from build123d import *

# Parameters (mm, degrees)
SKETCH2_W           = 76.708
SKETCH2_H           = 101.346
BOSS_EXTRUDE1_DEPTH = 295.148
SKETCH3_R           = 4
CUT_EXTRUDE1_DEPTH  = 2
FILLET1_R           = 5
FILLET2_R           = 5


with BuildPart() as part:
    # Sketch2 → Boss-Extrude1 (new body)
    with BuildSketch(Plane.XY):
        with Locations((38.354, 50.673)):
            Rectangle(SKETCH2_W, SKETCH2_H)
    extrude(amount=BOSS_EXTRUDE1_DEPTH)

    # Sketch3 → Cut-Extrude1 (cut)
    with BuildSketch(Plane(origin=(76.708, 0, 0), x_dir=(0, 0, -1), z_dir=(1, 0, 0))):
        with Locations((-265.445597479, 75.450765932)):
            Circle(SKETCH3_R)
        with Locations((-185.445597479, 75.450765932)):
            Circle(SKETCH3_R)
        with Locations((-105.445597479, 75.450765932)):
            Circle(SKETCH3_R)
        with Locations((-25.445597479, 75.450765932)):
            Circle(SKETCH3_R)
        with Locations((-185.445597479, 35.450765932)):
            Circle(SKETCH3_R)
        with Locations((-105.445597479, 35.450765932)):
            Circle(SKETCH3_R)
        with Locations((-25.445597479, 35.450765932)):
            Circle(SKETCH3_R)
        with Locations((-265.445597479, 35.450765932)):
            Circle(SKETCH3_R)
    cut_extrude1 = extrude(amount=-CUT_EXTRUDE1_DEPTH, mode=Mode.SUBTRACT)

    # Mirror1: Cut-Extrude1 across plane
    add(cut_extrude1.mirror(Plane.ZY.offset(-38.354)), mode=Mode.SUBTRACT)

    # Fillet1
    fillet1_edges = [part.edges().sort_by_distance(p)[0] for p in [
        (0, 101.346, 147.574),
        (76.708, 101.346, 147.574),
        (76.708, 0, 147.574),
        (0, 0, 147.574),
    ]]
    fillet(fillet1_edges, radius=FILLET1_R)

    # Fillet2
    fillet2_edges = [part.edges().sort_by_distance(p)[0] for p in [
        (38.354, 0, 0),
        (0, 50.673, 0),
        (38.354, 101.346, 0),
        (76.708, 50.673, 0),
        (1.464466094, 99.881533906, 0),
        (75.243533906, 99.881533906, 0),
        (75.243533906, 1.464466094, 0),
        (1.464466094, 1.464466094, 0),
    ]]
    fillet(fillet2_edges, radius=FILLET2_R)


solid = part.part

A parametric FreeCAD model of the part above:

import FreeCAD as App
import Part
import Sketcher
from FreeCAD import Vector
Q = App.Units.Quantity


def edges_at(feature, points):
    """Names of the edges that pass closest to the given points."""
    edges = feature.Shape.Edges
    near = lambda p: min(range(len(edges)), key=lambda i: edges[i].distToShape(Part.Vertex(*p))[0])
    return sorted({f"Edge{near(p) + 1}" for p in points})

doc = App.newDocument("Part")
params = doc.addObject("Spreadsheet::Sheet", "Params")
for row, (alias, value) in enumerate([
    ("pad1_length", "295.148 mm"),
    ("sketch2_diameter", "8 mm"),
    ("pocket1_length", "2 mm"),
    ("fillet_radius", "5 mm"),
    ("fillet2_radius", "5 mm"),
], start=1):
    params.set(f"A{row}", alias)
    params.set(f"B{row}", "=" + value)
    params.setAlias(f"B{row}", alias)

body = doc.addObject("PartDesign::Body", "Body")

sketch1 = body.newObject("Sketcher::SketchObject", "Sketch")
sketch1.AttachmentSupport = (doc.getObject("XY_Plane"), [""])
sketch1.MapMode = "FlatFace"
sketch1.addGeometry(Part.LineSegment(Vector(0, 101, 0), Vector(0, 0, 0)), False)
sketch1.addGeometry(Part.LineSegment(Vector(0, 0, 0), Vector(77, 0, 0)), False)
sketch1.addGeometry(Part.LineSegment(Vector(77, 0, 0), Vector(77, 101, 0)), False)
sketch1.addGeometry(Part.LineSegment(Vector(77, 101, 0), Vector(0, 101, 0)), False)
sketch1.addConstraint(Sketcher.Constraint("Coincident", 0, 2, 1, 1))
sketch1.addConstraint(Sketcher.Constraint("Coincident", 1, 2, 2, 1))
sketch1.addConstraint(Sketcher.Constraint("Coincident", 2, 2, 3, 1))
sketch1.addConstraint(Sketcher.Constraint("Coincident", 3, 2, 0, 1))
sketch1.addConstraint(Sketcher.Constraint("Vertical", 0))
sketch1.addConstraint(Sketcher.Constraint("Horizontal", 1))
sketch1.addConstraint(Sketcher.Constraint("Vertical", 2))
sketch1.addConstraint(Sketcher.Constraint("Horizontal", 3))
sketch1.addConstraint(Sketcher.Constraint("Coincident", 0, 2, -1, 1))
sketch1.addConstraint(Sketcher.Constraint("DistanceX", 1, 1, 1, 2, Q("76.708 mm")))
sketch1.addConstraint(Sketcher.Constraint("DistanceY", 0, 2, 0, 1, Q("101.346 mm")))
pad1 = body.newObject("PartDesign::Pad", "Pad")
pad1.Profile = sketch1
pad1.setExpression("Length", "Params.pad1_length")

sketch2 = body.newObject("Sketcher::SketchObject", "Sketch001")
sketch2.AttachmentSupport = (doc.getObject("YZ_Plane"), [""])
sketch2.MapMode = "FlatFace"
sketch2.AttachmentOffset = App.Placement(Vector(0, 0, 76.708), App.Rotation())
sketch2.addGeometry(Part.Circle(Vector(75.5, 265.4, 0), Vector(0, 0, 1), 4), False)
sketch2.addGeometry(Part.Circle(Vector(75.5, 185.4, 0), Vector(0, 0, 1), 4), False)
sketch2.addGeometry(Part.Circle(Vector(75.5, 105.4, 0), Vector(0, 0, 1), 4), False)
sketch2.addGeometry(Part.Circle(Vector(75.5, 25.4, 0), Vector(0, 0, 1), 4), False)
sketch2.addGeometry(Part.Circle(Vector(35.5, 185.4, 0), Vector(0, 0, 1), 4), False)
sketch2.addGeometry(Part.Circle(Vector(35.5, 105.4, 0), Vector(0, 0, 1), 4), False)
sketch2.addGeometry(Part.Circle(Vector(35.5, 25.4, 0), Vector(0, 0, 1), 4), False)
sketch2.addGeometry(Part.Circle(Vector(35.5, 265.4, 0), Vector(0, 0, 1), 4), False)
sketch2.addConstraint(Sketcher.Constraint("Equal", 0, 1))
sketch2.addConstraint(Sketcher.Constraint("Equal", 1, 2))
sketch2.addConstraint(Sketcher.Constraint("Equal", 2, 3))
sketch2.addConstraint(Sketcher.Constraint("Equal", 3, 4))
sketch2.addConstraint(Sketcher.Constraint("Equal", 4, 5))
sketch2.addConstraint(Sketcher.Constraint("Equal", 5, 6))
sketch2.addConstraint(Sketcher.Constraint("Equal", 6, 7))
sketch2.addConstraint(Sketcher.Constraint("Horizontal", 1, 3, 4, 3))
sketch2.addConstraint(Sketcher.Constraint("Horizontal", 2, 3, 5, 3))
sketch2.addConstraint(Sketcher.Constraint("Horizontal", 3, 3, 6, 3))
sketch2.addConstraint(Sketcher.Constraint("Horizontal", 0, 3, 7, 3))
sketch2.addConstraint(Sketcher.Constraint("Vertical", 0, 3, 1, 3))
sketch2.addConstraint(Sketcher.Constraint("Vertical", 1, 3, 2, 3))
sketch2.addConstraint(Sketcher.Constraint("Vertical", 2, 3, 3, 3))
sketch2.addConstraint(Sketcher.Constraint("Vertical", 4, 3, 5, 3))
sketch2.addConstraint(Sketcher.Constraint("Vertical", 5, 3, 6, 3))
sketch2.addConstraint(Sketcher.Constraint("Vertical", 6, 3, 7, 3))
sketch2.addConstraint(Sketcher.Constraint("Diameter", 0, Q("8 mm")))
sketch2.addConstraint(Sketcher.Constraint("DistanceY", 1, 3, 0, 3, Q("80 mm")))
sketch2.addConstraint(Sketcher.Constraint("DistanceY", 2, 3, 1, 3, Q("80 mm")))
sketch2.addConstraint(Sketcher.Constraint("DistanceY", 3, 3, 2, 3, Q("80 mm")))
sketch2.addConstraint(Sketcher.Constraint("DistanceX", 4, 3, 1, 3, Q("40 mm")))
sketch2.addConstraint(Sketcher.Constraint("DistanceX", -1, 1, 0, 3, Q("75.450766 mm")))
sketch2.addConstraint(Sketcher.Constraint("DistanceY", -1, 1, 0, 3, Q("265.445597 mm")))
sketch2.setExpression("Constraints[17]", "Params.sketch2_diameter")
pocket1 = body.newObject("PartDesign::Pocket", "Pocket")
pocket1.Profile = sketch2
pocket1.setExpression("Length", "Params.pocket1_length")
doc.recompute()

datumplane = body.newObject("PartDesign::Plane", "DatumPlane")
datumplane.AttachmentSupport = (doc.getObject("YZ_Plane"), [""])
datumplane.MapMode = "FlatFace"
datumplane.AttachmentOffset = App.Placement(Vector(0, 0, 38.354), App.Rotation())
mirrored = body.newObject("PartDesign::Mirrored", "Mirrored")
mirrored.Originals = [pocket1]
mirrored.MirrorPlane = (datumplane, [""])
body.Tip = mirrored
doc.recompute()

fillet = body.newObject("PartDesign::Fillet", "Fillet")
fillet.Base = (mirrored, edges_at(mirrored, [
    (0, 101.346, 147.574),
    (76.708, 101.346, 147.574),
    (76.708, 0, 147.574),
    (0, 0, 147.574),
]))
fillet.setExpression("Radius", "Params.fillet_radius")
doc.recompute()

fillet2 = body.newObject("PartDesign::Fillet", "Fillet001")
fillet2.Base = (fillet, edges_at(fillet, [
    (38.354, 0, 0),
    (0, 50.673, 0),
    (38.354, 101.346, 0),
    (76.708, 50.673, 0),
    (1.464, 99.882, 0),
    (75.244, 99.882, 0),
    (75.244, 1.464, 0),
    (1.464, 1.464, 0),
]))
fillet2.setExpression("Radius", "Params.fillet2_radius")

doc.recompute()
